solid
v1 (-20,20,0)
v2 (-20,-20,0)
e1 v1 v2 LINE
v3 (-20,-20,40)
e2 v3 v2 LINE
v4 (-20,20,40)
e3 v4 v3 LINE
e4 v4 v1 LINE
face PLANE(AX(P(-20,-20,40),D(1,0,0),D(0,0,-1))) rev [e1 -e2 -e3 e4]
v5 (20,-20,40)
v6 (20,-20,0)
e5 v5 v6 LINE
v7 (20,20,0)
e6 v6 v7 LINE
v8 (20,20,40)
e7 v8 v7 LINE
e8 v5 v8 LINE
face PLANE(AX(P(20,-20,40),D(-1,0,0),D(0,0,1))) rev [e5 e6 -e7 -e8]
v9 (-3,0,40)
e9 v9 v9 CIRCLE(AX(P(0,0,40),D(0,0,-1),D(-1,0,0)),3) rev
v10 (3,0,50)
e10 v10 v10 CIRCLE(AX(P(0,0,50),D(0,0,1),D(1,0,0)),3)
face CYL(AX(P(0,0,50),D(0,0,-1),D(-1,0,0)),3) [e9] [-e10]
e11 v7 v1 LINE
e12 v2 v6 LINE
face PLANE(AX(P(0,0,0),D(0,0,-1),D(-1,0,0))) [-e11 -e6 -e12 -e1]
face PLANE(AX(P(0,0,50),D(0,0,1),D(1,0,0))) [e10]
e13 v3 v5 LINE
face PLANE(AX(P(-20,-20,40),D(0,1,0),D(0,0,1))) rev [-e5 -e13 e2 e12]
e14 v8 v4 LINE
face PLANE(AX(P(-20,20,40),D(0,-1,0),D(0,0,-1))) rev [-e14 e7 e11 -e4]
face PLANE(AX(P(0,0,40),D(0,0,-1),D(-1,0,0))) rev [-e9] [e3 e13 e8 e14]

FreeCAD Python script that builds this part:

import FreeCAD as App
import Part
import Sketcher

V = App.Vector


def add_polygon(sketch, points):
    """Adds a closed chain of lines whose ends are joined by coincident constraints."""
    first, n = sketch.GeometryCount, len(points)
    for a, b in zip(points, points[1:] + points[:1]):
        sketch.addGeometry(Part.LineSegment(App.Vector(*a, 0), App.Vector(*b, 0)), False)
    for i in range(n):
        sketch.addConstraint(Sketcher.Constraint("Coincident", first + i, 2, first + (i + 1) % n, 1))

doc = App.newDocument("Part")
body = doc.addObject("PartDesign::Body", "Body")

sketch1 = body.newObject("Sketcher::SketchObject", "Sketch")
sketch1.AttachmentSupport = (doc.getObject("XY_Plane"), [""])
sketch1.MapMode = "FlatFace"
add_polygon(sketch1, [(-20, 20), (-20, -20), (20, -20), (20, 20)])
sketch1.addConstraint([
    Sketcher.Constraint("Vertical", 0),
    Sketcher.Constraint("Horizontal", 1),
    Sketcher.Constraint("Vertical", 2),
    Sketcher.Constraint("Horizontal", 3),
    Sketcher.Constraint("Symmetric", 0, 2, 2, 2, -1, 1),
    Sketcher.Constraint("Equal", 3, 0),
    Sketcher.Constraint("DistanceX", 1, 1, 1, 2, 40.0),
])
pad1 = body.newObject("PartDesign::Pad", "Pad")
pad1.Profile = sketch1
pad1.Length = 40

sketch2 = body.newObject("Sketcher::SketchObject", "Sketch001")
sketch2.AttachmentSupport = (doc.getObject("XY_Plane"), [""])
sketch2.MapMode = "FlatFace"
sketch2.AttachmentOffset = App.Placement(V(0, 0, 40), App.Rotation())
sketch2.addGeometry(Part.Circle(V(0, 0, 0), V(0, 0, 1), 3), False)
sketch2.addConstraint([
    Sketcher.Constraint("Coincident", 0, 3, -1, 1),
    Sketcher.Constraint("Diameter", 0, 6.0),
])
pad2 = body.newObject("PartDesign::Pad", "Pad001")
pad2.Profile = sketch2
pad2.Length = 10

doc.recompute()
